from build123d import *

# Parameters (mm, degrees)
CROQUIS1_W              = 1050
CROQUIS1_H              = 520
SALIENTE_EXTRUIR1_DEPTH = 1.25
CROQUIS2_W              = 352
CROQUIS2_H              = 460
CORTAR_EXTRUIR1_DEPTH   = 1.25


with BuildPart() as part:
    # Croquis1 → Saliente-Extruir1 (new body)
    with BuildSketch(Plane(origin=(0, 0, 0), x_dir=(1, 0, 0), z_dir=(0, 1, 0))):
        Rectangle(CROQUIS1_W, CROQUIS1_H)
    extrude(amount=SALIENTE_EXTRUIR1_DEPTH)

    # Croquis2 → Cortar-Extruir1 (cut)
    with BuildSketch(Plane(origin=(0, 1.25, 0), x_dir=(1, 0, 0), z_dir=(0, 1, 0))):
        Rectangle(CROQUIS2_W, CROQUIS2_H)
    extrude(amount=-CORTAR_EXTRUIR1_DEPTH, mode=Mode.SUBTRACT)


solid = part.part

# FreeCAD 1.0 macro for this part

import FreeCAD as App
import Part
import Sketcher
from FreeCAD import Vector
Q = App.Units.Quantity


def add_polygon(sketch, points):
    """Adds a closed chain of lines whose ends are joined by coincident constraints."""
    first, n = sketch.GeometryCount, len(points)
    for a, b in zip(points, points[1:] + points[:1]):
        sketch.addGeometry(Part.LineSegment(App.Vector(*a, 0), App.Vector(*b, 0)), False)
    for i in range(n):
        sketch.addConstraint(Sketcher.Constraint("Coincident", first + i, 2, first + (i + 1) % n, 1))

doc = App.newDocument("Part")
body = doc.addObject("PartDesign::Body", "Body")

sketch1 = body.newObject("Sketcher::SketchObject", "Sketch")
sketch1.AttachmentSupport = (doc.getObject("XZ_Plane"), [""])
sketch1.MapMode = "FlatFace"
add_polygon(sketch1, [(-525, -260), (-525, 260), (525, 260), (525, -260)])
sketch1.addConstraint([
    Sketcher.Constraint("Vertical", 0),
    Sketcher.Constraint("Horizontal", 1),
    Sketcher.Constraint("Vertical", 2),
    Sketcher.Constraint("Horizontal", 3),
    Sketcher.Constraint("Symmetric", 0, 2, 2, 2, -1, 1),
    Sketcher.Constraint("DistanceX", 1, 1, 1, 2, Q("1050 mm")),
    Sketcher.Constraint("DistanceY", 0, 1, 0, 2, Q("520 mm")),
])
pad1 = body.newObject("PartDesign::Pad", "Pad")
pad1.Profile = sketch1
pad1.Length = 1.25
pad1.Reversed = True

sketch2 = body.newObject("Sketcher::SketchObject", "Sketch001")
sketch2.AttachmentSupport = (doc.getObject("XZ_Plane"), [""])
sketch2.MapMode = "FlatFace"
sketch2.AttachmentOffset = App.Placement(Vector(0, 0, -1.25), App.Rotation())
add_polygon(sketch2, [(-176, -230), (-176, 230), (176, 230), (176, -230)])
sketch2.addConstraint([
    Sketcher.Constraint("Vertical", 0),
    Sketcher.Constraint("Horizontal", 1),
    Sketcher.Constraint("Vertical", 2),
    Sketcher.Constraint("Horizontal", 3),
    Sketcher.Constraint("Symmetric", 0, 2, 2, 2, -1, 1),
    Sketcher.Constraint("DistanceX", 1, 1, 1, 2, Q("352 mm")),
    Sketcher.Constraint("DistanceY", 0, 1, 0, 2, Q("460 mm")),
])
pocket1 = body.newObject("PartDesign::Pocket", "Pocket")
pocket1.Profile = sketch2
pocket1.Length = 1.25
pocket1.Reversed = True

doc.recompute()
